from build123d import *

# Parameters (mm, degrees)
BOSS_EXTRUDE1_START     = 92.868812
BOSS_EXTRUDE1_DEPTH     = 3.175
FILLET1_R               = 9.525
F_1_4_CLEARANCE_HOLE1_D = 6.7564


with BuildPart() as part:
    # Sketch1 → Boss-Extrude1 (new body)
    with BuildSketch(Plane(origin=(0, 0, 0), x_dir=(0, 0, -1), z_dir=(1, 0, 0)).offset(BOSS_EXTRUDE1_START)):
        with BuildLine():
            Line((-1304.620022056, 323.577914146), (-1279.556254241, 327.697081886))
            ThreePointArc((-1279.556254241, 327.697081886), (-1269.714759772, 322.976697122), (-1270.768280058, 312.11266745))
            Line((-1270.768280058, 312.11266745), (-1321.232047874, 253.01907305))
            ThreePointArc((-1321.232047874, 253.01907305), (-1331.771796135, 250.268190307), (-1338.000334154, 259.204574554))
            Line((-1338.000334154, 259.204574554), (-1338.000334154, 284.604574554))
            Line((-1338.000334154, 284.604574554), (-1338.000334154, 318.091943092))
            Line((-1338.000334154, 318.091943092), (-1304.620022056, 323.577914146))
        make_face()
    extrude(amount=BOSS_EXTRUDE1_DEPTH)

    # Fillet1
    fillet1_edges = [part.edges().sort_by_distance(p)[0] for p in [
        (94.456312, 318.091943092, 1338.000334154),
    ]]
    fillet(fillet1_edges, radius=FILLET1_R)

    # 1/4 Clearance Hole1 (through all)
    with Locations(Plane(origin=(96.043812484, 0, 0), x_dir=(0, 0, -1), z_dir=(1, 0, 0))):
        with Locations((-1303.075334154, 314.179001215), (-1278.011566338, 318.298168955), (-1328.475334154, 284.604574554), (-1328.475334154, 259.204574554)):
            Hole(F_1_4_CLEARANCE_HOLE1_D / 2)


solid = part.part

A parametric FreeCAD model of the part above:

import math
import FreeCAD as App
import Part
import Sketcher
from FreeCAD import Vector
Q = App.Units.Quantity


def edges_at(feature, points):
    """Names of the edges that pass closest to the given points."""
    edges = feature.Shape.Edges
    near = lambda p: min(range(len(edges)), key=lambda i: edges[i].distToShape(Part.Vertex(*p))[0])
    return sorted({f"Edge{near(p) + 1}" for p in points})

doc = App.newDocument("Part")
body = doc.addObject("PartDesign::Body", "Body")

# Sketch on YZ plane
sketch1 = body.newObject("Sketcher::SketchObject", "Sketch")
sketch1.AttachmentSupport = (doc.getObject("YZ_Plane"), [""])
sketch1.MapMode = "FlatFace"
sketch1.AttachmentOffset = App.Placement(Vector(0, 0, 92.868812), App.Rotation())
sketch1.addGeometry(Part.LineSegment(Vector(328, 1280, 0), Vector(324, 1305, 0)), False)
sketch1.addGeometry(Part.LineSegment(Vector(324, 1305, 0), Vector(318, 1338, 0)), False)
sketch1.addGeometry(Part.LineSegment(Vector(318, 1338, 0), Vector(259, 1338, 0)), False)
sketch1.addGeometry(Part.ArcOfCircle(Part.Circle(Vector(259, 1328, 0), Vector(0, 0, 1), 10), math.radians(90), math.radians(230)), False)
sketch1.addGeometry(Part.LineSegment(Vector(253, 1321, 0), Vector(312, 1271, 0)), False)
sketch1.addGeometry(Part.ArcOfCircle(Part.Circle(Vector(318, 1278, 0), Vector(0, 0, 1), 10), math.radians(-130), math.radians(9)), False)
sketch1.addConstraint(Sketcher.Constraint("Coincident", 0, 2, 1, 1))
sketch1.addConstraint(Sketcher.Constraint("Coincident", 1, 2, 2, 1))
sketch1.addConstraint(Sketcher.Constraint("Tangent", 2, 2, 3, 1))
sketch1.addConstraint(Sketcher.Constraint("Tangent", 3, 2, 4, 1))
sketch1.addConstraint(Sketcher.Constraint("Tangent", 4, 2, 5, 1))
sketch1.addConstraint(Sketcher.Constraint("Tangent", 5, 2, 0, 1))
sketch1.addConstraint(Sketcher.Constraint("Horizontal", 2))
sketch1.addConstraint(Sketcher.Constraint("Equal", 3, 5))
sketch1.addConstraint(Sketcher.Constraint("Parallel", 0, 1))
sketch1.addConstraint(Sketcher.Constraint("Distance", 0, Q("1 in")))
sketch1.addConstraint(Sketcher.Constraint("Radius", 3, Q("0.375 in")))
sketch1.addConstraint(Sketcher.Constraint("DistanceX", 2, 2, 2, 1, Q("58.887369 mm")))
sketch1.addConstraint(Sketcher.Constraint("DistanceX", 3, 2, 3, 3, Q("6.185502 mm")))
sketch1.addConstraint(Sketcher.Constraint("Distance", 1, Q("33.828111 mm")))
sketch1.addConstraint(Sketcher.Constraint("DistanceX", -1, 1, 5, 3, Q("318.298169 mm")))
sketch1.addConstraint(Sketcher.Constraint("DistanceY", -1, 1, 4, 2, Q("1270.76828 mm")))
pad1 = body.newObject("PartDesign::Pad", "Pad")
pad1.Profile = sketch1
pad1.Length = Q("0.125 in")
doc.recompute()

fillet = body.newObject("PartDesign::Fillet", "Fillet")
fillet.Base = (pad1, edges_at(pad1, [(94.456, 318.092, 1338)]))
fillet.Radius = Q("0.375 in")

# Sketch on YZ plane
sketch2 = body.newObject("Sketcher::SketchObject", "Sketch001")
sketch2.AttachmentSupport = (doc.getObject("YZ_Plane"), [""])
sketch2.MapMode = "FlatFace"
sketch2.AttachmentOffset = App.Placement(Vector(0, 0, 96.043812), App.Rotation())
sketch2.addGeometry(Part.Circle(Vector(314.2, 1303.1, 0), Vector(0, 0, 1), 3.4), False)
sketch2.addGeometry(Part.Circle(Vector(318.3, 1278, 0), Vector(0, 0, 1), 3.4), False)
sketch2.addGeometry(Part.Circle(Vector(284.6, 1328.5, 0), Vector(0, 0, 1), 3.4), False)
sketch2.addGeometry(Part.Circle(Vector(259.2, 1328.5, 0), Vector(0, 0, 1), 3.4), False)
sketch2.addConstraint(Sketcher.Constraint("Equal", 0, 1))
sketch2.addConstraint(Sketcher.Constraint("Equal", 1, 2))
sketch2.addConstraint(Sketcher.Constraint("Equal", 2, 3))
sketch2.addConstraint(Sketcher.Constraint("Horizontal", 2, 3, 3, 3))
sketch2.addConstraint(Sketcher.Constraint("Diameter", 0, Q("0.266 in")))
sketch2.addConstraint(Sketcher.Constraint("DistanceY", 0, 3, 2, 3, Q("1 in")))
sketch2.addConstraint(Sketcher.Constraint("DistanceX", 3, 3, 2, 3, Q("1 in")))
sketch2.addConstraint(Sketcher.Constraint("DistanceX", -1, 1, 0, 3, Q("314.179001 mm")))
sketch2.addConstraint(Sketcher.Constraint("DistanceX", -1, 1, 1, 3, Q("318.298169 mm")))
sketch2.addConstraint(Sketcher.Constraint("DistanceY", -1, 1, 0, 3, Q("1303.075334 mm")))
sketch2.addConstraint(Sketcher.Constraint("DistanceY", -1, 1, 1, 3, Q("1278.011566 mm")))
sketch2.addConstraint(Sketcher.Constraint("DistanceX", -1, 1, 2, 3, Q("284.604575 mm")))
doc.recompute()
hole = body.newObject("PartDesign::Hole", "Hole")
hole.Profile = sketch2
hole.ThreadType = "None"
hole.Diameter = Q("0.266 in")
hole.DepthType = "ThroughAll"

doc.recompute()
